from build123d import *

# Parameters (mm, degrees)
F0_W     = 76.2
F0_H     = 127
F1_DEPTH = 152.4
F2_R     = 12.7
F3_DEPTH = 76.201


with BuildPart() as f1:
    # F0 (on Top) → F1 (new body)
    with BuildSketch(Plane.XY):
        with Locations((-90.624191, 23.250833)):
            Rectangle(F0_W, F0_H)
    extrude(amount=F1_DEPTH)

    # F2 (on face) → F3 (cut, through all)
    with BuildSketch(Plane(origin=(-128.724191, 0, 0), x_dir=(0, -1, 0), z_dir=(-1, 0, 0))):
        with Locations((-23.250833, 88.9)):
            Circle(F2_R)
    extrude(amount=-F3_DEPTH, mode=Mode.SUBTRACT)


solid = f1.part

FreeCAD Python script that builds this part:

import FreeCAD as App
import Part
import Sketcher

V = App.Vector
Q = App.Units.Quantity

doc = App.newDocument("Part")
body = doc.addObject("PartDesign::Body", "Body")

# Sketch on XY plane
sketch1 = doc.addObject("Sketcher::SketchObject", "Sketch")
body.addObject(sketch1)
sketch1.AttachmentSupport = (doc.XY_Plane, [""])
sketch1.MapMode = "FlatFace"
sketch1.addGeometry(Part.LineSegment(V(-129, 87, 0), V(-129, -40, 0)), False)
sketch1.addGeometry(Part.LineSegment(V(-129, -40, 0), V(-53, -40, 0)), False)
sketch1.addGeometry(Part.LineSegment(V(-53, -40, 0), V(-53, 87, 0)), False)
sketch1.addGeometry(Part.LineSegment(V(-53, 87, 0), V(-129, 87, 0)), False)
sketch1.addConstraint(Sketcher.Constraint("Coincident", 0, 2, 1, 1))
sketch1.addConstraint(Sketcher.Constraint("Coincident", 1, 2, 2, 1))
sketch1.addConstraint(Sketcher.Constraint("Coincident", 2, 2, 3, 1))
sketch1.addConstraint(Sketcher.Constraint("Coincident", 3, 2, 0, 1))
sketch1.addConstraint(Sketcher.Constraint("Vertical", 0))
sketch1.addConstraint(Sketcher.Constraint("Horizontal", 1))
sketch1.addConstraint(Sketcher.Constraint("Vertical", 2))
sketch1.addConstraint(Sketcher.Constraint("Horizontal", 3))
sketch1.addConstraint(Sketcher.Constraint("DistanceX", 1, 1, 1, 2, Q("3 in")))
sketch1.addConstraint(Sketcher.Constraint("DistanceY", 0, 2, 0, 1, Q("5 in")))
sketch1.addConstraint(Sketcher.Constraint("DistanceX", 0, 2, -1, 1, Q("128.724191 mm")))
sketch1.addConstraint(Sketcher.Constraint("DistanceY", 0, 2, -1, 1, Q("40.249167 mm")))
pad1 = doc.addObject("PartDesign::Pad", "Pad")
body.addObject(pad1)
pad1.Profile = sketch1
pad1.Length = Q("6 in")

# Sketch on YZ plane
sketch2 = doc.addObject("Sketcher::SketchObject", "Sketch001")
body.addObject(sketch2)
sketch2.AttachmentSupport = (doc.YZ_Plane, [""])
sketch2.MapMode = "FlatFace"
sketch2.AttachmentOffset = App.Placement(V(0, 0, -128.724191), App.Rotation())
sketch2.addGeometry(Part.Circle(V(23, 89, 0), V(0, 0, 1), 13), False)
sketch2.addConstraint(Sketcher.Constraint("Diameter", 0, Q("1 in")))
sketch2.addConstraint(Sketcher.Constraint("DistanceY", -1, 1, 0, 3, Q("3.5 in")))
sketch2.addConstraint(Sketcher.Constraint("DistanceX", -1, 1, 0, 3, Q("23.250833 mm")))
pocket1 = doc.addObject("PartDesign::Pocket", "Pocket")
body.addObject(pocket1)
pocket1.Profile = sketch2
pocket1.Type = "ThroughAll"
pocket1.Reversed = True

doc.recompute()
